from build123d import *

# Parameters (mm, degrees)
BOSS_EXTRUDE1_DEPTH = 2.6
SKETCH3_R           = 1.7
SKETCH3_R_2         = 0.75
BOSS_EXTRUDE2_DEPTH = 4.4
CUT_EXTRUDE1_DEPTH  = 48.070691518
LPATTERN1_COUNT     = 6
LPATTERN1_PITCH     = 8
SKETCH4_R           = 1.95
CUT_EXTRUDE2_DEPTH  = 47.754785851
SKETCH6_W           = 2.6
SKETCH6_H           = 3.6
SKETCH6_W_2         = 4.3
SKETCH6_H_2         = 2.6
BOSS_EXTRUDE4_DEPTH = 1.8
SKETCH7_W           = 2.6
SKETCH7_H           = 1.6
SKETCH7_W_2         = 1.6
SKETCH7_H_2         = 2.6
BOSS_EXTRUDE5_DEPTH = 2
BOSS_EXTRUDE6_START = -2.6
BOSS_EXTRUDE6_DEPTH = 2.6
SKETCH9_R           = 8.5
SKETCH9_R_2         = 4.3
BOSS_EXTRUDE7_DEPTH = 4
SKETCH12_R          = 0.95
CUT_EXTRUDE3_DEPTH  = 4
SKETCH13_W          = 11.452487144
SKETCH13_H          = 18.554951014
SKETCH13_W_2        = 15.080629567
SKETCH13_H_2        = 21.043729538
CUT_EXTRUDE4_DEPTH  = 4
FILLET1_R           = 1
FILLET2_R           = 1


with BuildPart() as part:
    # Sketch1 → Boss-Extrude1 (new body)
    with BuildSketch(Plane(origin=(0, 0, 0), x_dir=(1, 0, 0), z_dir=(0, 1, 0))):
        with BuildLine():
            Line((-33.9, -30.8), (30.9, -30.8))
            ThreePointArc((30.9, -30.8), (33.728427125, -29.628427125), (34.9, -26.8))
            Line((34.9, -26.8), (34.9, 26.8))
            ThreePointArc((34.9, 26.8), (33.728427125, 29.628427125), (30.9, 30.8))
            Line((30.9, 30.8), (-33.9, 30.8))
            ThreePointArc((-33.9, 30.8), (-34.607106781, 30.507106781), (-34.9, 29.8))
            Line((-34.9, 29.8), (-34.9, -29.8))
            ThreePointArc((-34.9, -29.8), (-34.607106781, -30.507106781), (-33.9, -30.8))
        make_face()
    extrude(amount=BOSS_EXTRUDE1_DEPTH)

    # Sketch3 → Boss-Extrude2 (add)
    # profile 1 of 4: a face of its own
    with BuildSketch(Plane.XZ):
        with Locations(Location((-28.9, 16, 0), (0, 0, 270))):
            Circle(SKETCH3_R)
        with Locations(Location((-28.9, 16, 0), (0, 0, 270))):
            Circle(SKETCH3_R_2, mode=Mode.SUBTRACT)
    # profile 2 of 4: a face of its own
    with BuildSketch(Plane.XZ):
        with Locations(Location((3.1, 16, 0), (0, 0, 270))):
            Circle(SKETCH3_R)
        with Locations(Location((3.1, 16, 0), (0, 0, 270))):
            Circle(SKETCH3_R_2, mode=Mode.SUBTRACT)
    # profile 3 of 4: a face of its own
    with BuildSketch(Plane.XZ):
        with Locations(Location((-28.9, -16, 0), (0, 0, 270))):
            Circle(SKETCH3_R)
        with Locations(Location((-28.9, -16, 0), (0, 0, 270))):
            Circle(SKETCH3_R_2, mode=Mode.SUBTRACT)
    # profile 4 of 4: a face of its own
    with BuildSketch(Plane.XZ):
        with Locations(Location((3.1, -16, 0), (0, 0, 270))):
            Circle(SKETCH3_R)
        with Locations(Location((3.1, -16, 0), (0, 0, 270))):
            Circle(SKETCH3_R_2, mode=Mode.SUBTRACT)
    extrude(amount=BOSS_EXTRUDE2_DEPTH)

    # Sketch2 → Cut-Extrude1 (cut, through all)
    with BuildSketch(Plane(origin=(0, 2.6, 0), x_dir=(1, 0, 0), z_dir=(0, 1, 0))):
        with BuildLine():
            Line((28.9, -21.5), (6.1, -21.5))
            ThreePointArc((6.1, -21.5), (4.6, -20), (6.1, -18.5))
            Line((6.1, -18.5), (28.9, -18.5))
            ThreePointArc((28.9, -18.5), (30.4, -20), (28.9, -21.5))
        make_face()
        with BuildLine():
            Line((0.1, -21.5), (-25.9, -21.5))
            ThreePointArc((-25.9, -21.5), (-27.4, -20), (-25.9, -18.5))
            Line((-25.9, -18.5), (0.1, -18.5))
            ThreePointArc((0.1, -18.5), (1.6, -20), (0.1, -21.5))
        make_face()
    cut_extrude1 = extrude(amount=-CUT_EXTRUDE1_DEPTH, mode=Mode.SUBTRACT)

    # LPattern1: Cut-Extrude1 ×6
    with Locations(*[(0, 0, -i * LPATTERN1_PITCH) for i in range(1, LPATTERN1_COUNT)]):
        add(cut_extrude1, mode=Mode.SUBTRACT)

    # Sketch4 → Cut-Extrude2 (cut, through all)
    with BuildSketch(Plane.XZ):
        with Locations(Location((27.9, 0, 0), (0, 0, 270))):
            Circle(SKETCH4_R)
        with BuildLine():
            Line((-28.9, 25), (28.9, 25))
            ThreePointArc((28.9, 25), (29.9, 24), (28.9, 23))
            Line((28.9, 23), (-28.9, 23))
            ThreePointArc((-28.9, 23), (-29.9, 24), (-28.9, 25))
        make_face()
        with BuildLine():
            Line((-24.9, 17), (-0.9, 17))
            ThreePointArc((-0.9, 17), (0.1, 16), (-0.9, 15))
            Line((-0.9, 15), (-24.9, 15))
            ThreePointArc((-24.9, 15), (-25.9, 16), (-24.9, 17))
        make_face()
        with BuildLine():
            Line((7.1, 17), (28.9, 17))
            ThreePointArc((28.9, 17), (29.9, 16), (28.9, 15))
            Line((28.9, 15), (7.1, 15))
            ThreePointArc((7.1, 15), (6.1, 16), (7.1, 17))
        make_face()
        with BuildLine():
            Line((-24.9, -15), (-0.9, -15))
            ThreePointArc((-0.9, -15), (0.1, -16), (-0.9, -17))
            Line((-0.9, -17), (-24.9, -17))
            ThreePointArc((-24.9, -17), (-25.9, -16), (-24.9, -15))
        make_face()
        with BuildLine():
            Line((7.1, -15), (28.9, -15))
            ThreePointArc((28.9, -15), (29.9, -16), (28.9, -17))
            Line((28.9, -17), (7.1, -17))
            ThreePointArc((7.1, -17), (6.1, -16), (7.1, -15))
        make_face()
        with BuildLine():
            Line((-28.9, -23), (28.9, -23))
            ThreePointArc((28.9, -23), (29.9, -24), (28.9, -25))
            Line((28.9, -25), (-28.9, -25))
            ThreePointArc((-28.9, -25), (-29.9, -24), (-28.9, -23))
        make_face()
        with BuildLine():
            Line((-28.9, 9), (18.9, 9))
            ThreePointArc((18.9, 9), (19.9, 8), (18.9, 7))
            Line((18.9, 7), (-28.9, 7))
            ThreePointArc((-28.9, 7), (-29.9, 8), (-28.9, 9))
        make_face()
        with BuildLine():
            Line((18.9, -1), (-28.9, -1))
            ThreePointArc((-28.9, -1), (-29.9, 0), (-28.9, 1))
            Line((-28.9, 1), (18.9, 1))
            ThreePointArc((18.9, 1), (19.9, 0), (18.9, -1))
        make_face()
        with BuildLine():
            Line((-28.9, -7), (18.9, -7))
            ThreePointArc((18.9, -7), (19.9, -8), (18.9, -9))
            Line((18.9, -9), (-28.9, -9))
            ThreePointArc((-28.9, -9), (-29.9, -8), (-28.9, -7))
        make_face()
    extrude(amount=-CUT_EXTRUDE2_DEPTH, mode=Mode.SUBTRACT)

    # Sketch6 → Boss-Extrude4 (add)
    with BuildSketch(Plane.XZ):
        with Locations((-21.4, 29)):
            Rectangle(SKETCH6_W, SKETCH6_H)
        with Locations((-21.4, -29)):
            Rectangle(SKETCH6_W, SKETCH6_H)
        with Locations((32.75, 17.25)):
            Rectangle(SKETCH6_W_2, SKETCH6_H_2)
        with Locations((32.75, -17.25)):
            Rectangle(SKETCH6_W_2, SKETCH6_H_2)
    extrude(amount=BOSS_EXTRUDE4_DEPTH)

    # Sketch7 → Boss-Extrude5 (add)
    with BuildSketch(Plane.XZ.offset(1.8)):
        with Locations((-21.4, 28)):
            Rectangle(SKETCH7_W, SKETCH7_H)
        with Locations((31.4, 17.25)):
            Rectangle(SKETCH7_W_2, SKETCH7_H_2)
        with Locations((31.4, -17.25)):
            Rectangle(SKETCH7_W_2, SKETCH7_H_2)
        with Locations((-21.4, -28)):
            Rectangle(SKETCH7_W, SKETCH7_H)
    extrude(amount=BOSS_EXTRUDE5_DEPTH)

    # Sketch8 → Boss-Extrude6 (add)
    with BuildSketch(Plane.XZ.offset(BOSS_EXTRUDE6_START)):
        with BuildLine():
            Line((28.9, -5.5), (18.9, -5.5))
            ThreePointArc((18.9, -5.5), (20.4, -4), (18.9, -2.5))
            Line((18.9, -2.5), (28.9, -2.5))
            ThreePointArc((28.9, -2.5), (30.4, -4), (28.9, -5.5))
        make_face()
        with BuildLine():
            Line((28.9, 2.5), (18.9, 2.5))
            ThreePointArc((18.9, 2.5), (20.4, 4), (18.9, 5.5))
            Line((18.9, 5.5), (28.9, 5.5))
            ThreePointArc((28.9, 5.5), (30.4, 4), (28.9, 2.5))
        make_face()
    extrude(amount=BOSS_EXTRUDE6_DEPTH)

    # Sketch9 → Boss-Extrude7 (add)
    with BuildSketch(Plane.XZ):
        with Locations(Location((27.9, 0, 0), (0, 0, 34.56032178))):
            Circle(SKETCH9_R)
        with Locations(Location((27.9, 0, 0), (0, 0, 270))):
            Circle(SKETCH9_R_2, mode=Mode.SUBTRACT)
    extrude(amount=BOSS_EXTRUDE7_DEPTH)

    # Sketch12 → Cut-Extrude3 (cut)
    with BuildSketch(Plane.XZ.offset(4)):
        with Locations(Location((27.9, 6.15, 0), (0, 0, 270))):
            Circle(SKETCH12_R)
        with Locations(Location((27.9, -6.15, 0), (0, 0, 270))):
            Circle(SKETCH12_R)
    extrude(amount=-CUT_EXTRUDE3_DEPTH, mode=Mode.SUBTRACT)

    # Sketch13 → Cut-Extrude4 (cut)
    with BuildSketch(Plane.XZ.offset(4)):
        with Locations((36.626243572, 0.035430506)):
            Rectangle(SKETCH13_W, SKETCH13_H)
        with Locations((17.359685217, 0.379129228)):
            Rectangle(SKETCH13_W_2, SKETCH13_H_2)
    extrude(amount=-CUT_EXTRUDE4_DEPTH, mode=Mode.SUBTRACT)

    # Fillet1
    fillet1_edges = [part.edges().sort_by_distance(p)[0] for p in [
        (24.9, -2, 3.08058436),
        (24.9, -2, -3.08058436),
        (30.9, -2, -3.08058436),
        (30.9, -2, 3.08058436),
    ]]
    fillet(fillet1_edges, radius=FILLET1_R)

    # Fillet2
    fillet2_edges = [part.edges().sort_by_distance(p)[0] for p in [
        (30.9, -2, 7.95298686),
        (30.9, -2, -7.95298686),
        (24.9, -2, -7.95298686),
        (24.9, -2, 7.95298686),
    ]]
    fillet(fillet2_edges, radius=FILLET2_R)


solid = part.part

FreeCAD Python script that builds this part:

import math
import FreeCAD as App
import Part
import Sketcher

V = App.Vector


def edges_at(feature, points):
    """Names of the edges that pass closest to the given points."""
    edges = feature.Shape.Edges
    near = lambda p: min(range(len(edges)), key=lambda i: edges[i].distToShape(Part.Vertex(*p))[0])
    return sorted({f"Edge{near(p) + 1}" for p in points})


def add_polygon(sketch, points):
    """Adds a closed chain of lines whose ends are joined by coincident constraints."""
    first, n = sketch.GeometryCount, len(points)
    for a, b in zip(points, points[1:] + points[:1]):
        sketch.addGeometry(Part.LineSegment(App.Vector(*a, 0), App.Vector(*b, 0)), False)
    for i in range(n):
        sketch.addConstraint(Sketcher.Constraint("Coincident", first + i, 2, first + (i + 1) % n, 1))

doc = App.newDocument("Part")
body = doc.addObject("PartDesign::Body", "Body")

sketch1 = body.newObject("Sketcher::SketchObject", "Sketch")
sketch1.AttachmentSupport = (doc.getObject("XZ_Plane"), [""])
sketch1.MapMode = "FlatFace"
sketch1.addGeometry(Part.LineSegment(V(-33.9, 30.8, 0), V(30.9, 30.8, 0)), False)
sketch1.addGeometry(Part.ArcOfCircle(Part.Circle(V(30.9, 26.8, 0), V(0, 0, 1), 4), math.radians(0), math.radians(90)), False)
sketch1.addGeometry(Part.LineSegment(V(34.9, 26.8, 0), V(34.9, -26.8, 0)), False)
sketch1.addGeometry(Part.ArcOfCircle(Part.Circle(V(30.9, -26.8, 0), V(0, 0, 1), 4), math.radians(-90), math.radians(0)), False)
sketch1.addGeometry(Part.LineSegment(V(30.9, -30.8, 0), V(-33.9, -30.8, 0)), False)
sketch1.addGeometry(Part.ArcOfCircle(Part.Circle(V(-33.9, -29.8, 0), V(0, 0, 1), 1), math.radians(-180), math.radians(-90)), False)
sketch1.addGeometry(Part.LineSegment(V(-34.9, -29.8, 0), V(-34.9, 29.8, 0)), False)
sketch1.addGeometry(Part.ArcOfCircle(Part.Circle(V(-33.9, 29.8, 0), V(0, 0, 1), 1), math.radians(90), math.radians(180)), False)
sketch1.addConstraint(Sketcher.Constraint("Tangent", 0, 2, 1, 2))
sketch1.addConstraint(Sketcher.Constraint("Tangent", 1, 1, 2, 1))
sketch1.addConstraint(Sketcher.Constraint("Tangent", 2, 2, 3, 2))
sketch1.addConstraint(Sketcher.Constraint("Tangent", 3, 1, 4, 1))
sketch1.addConstraint(Sketcher.Constraint("Tangent", 4, 2, 5, 2))
sketch1.addConstraint(Sketcher.Constraint("Tangent", 5, 1, 6, 1))
sketch1.addConstraint(Sketcher.Constraint("Tangent", 6, 2, 7, 2))
sketch1.addConstraint(Sketcher.Constraint("Tangent", 7, 1, 0, 1))
sketch1.addConstraint(Sketcher.Constraint("Horizontal", 0))
sketch1.addConstraint(Sketcher.Constraint("Vertical", 2))
sketch1.addConstraint(Sketcher.Constraint("Horizontal", 4))
sketch1.addConstraint(Sketcher.Constraint("Vertical", 6))
sketch1.addConstraint(Sketcher.Constraint("Equal", 1, 3))
sketch1.addConstraint(Sketcher.Constraint("Equal", 5, 7))
sketch1.addConstraint(Sketcher.Constraint("Radius", 1, 4.0))
sketch1.addConstraint(Sketcher.Constraint("Radius", 5, 1.0))
sketch1.addConstraint(Sketcher.Constraint("DistanceX", 0, 1, 0, 2, 64.8))
sketch1.addConstraint(Sketcher.Constraint("DistanceY", 2, 2, 2, 1, 53.6))
sketch1.addConstraint(Sketcher.Constraint("DistanceX", -1, 1, 1, 3, 30.9))
sketch1.addConstraint(Sketcher.Constraint("DistanceY", -1, 1, 1, 3, 26.8))
pad1 = body.newObject("PartDesign::Pad", "Pad")
pad1.Profile = sketch1
pad1.Length = 2.6
pad1.Reversed = True

sketch2 = body.newObject("Sketcher::SketchObject", "Sketch001")
sketch2.AttachmentSupport = (doc.getObject("XZ_Plane"), [""])
sketch2.MapMode = "FlatFace"
sketch2.addGeometry(Part.Circle(V(-28.9, 16, 0), V(0, 0, 1), 1.7), False)
sketch2.addGeometry(Part.Circle(V(-28.9, 16, 0), V(0, 0, 1), 0.8), False)
sketch2.addGeometry(Part.Circle(V(3.1, 16, 0), V(0, 0, 1), 1.7), False)
sketch2.addGeometry(Part.Circle(V(3.1, 16, 0), V(0, 0, 1), 0.8), False)
sketch2.addGeometry(Part.Circle(V(-28.9, -16, 0), V(0, 0, 1), 1.7), False)
sketch2.addGeometry(Part.Circle(V(-28.9, -16, 0), V(0, 0, 1), 0.8), False)
sketch2.addGeometry(Part.Circle(V(3.1, -16, 0), V(0, 0, 1), 1.7), False)
sketch2.addGeometry(Part.Circle(V(3.1, -16, 0), V(0, 0, 1), 0.8), False)
sketch2.addConstraint(Sketcher.Constraint("Coincident", 1, 3, 0, 3))
sketch2.addConstraint(Sketcher.Constraint("Coincident", 3, 3, 2, 3))
sketch2.addConstraint(Sketcher.Constraint("Coincident", 5, 3, 4, 3))
sketch2.addConstraint(Sketcher.Constraint("Coincident", 7, 3, 6, 3))
sketch2.addConstraint(Sketcher.Constraint("Equal", 0, 2))
sketch2.addConstraint(Sketcher.Constraint("Equal", 1, 3))
sketch2.addConstraint(Sketcher.Constraint("Equal", 2, 4))
sketch2.addConstraint(Sketcher.Constraint("Equal", 3, 5))
sketch2.addConstraint(Sketcher.Constraint("Equal", 4, 6))
sketch2.addConstraint(Sketcher.Constraint("Equal", 5, 7))
sketch2.addConstraint(Sketcher.Constraint("Symmetric", 0, 3, 4, 3, -1))
sketch2.addConstraint(Sketcher.Constraint("Symmetric", 2, 3, 6, 3, -1))
sketch2.addConstraint(Sketcher.Constraint("Horizontal", 1, 3, 2, 3))
sketch2.addConstraint(Sketcher.Constraint("Diameter", 0, 3.4))
sketch2.addConstraint(Sketcher.Constraint("Diameter", 1, 1.5))
sketch2.addConstraint(Sketcher.Constraint("DistanceY", -1, 1, 0, 3, 16.0))
sketch2.addConstraint(Sketcher.Constraint("DistanceX", 0, 3, 2, 3, 32.0))
sketch2.addConstraint(Sketcher.Constraint("DistanceX", 0, 3, -1, 1, 28.9))
pad2 = body.newObject("PartDesign::Pad", "Pad001")
pad2.Profile = sketch2
pad2.Length = 4.4

sketch3 = body.newObject("Sketcher::SketchObject", "Sketch002")
sketch3.AttachmentSupport = (doc.getObject("XZ_Plane"), [""])
sketch3.MapMode = "FlatFace"
sketch3.AttachmentOffset = App.Placement(V(0, 0, -2.6), App.Rotation())
sketch3.addGeometry(Part.LineSegment(V(6.1, 21.5, 0), V(28.9, 21.5, 0)), False)
sketch3.addGeometry(Part.ArcOfCircle(Part.Circle(V(28.9, 20, 0), V(0, 0, 1), 1.5), math.radians(-90), math.radians(90)), False)
sketch3.addGeometry(Part.LineSegment(V(28.9, 18.5, 0), V(6.1, 18.5, 0)), False)
sketch3.addGeometry(Part.ArcOfCircle(Part.Circle(V(6.1, 20, 0), V(0, 0, 1), 1.5), math.radians(90), math.radians(270)), False)
sketch3.addGeometry(Part.LineSegment(V(-25.9, 21.5, 0), V(0.1, 21.5, 0)), False)
sketch3.addGeometry(Part.ArcOfCircle(Part.Circle(V(0.1, 20, 0), V(0, 0, 1), 1.5), math.radians(-90), math.radians(90)), False)
sketch3.addGeometry(Part.LineSegment(V(0.1, 18.5, 0), V(-25.9, 18.5, 0)), False)
sketch3.addGeometry(Part.ArcOfCircle(Part.Circle(V(-25.9, 20, 0), V(0, 0, 1), 1.5), math.radians(90), math.radians(270)), False)
sketch3.addConstraint(Sketcher.Constraint("Tangent", 0, 2, 1, 2))
sketch3.addConstraint(Sketcher.Constraint("Tangent", 1, 1, 2, 1))
sketch3.addConstraint(Sketcher.Constraint("Tangent", 2, 2, 3, 2))
sketch3.addConstraint(Sketcher.Constraint("Tangent", 3, 1, 0, 1))
sketch3.addConstraint(Sketcher.Constraint("Tangent", 4, 2, 5, 2))
sketch3.addConstraint(Sketcher.Constraint("Tangent", 5, 1, 6, 1))
sketch3.addConstraint(Sketcher.Constraint("Tangent", 6, 2, 7, 2))
sketch3.addConstraint(Sketcher.Constraint("Tangent", 7, 1, 4, 1))
sketch3.addConstraint(Sketcher.Constraint("Horizontal", 0))
sketch3.addConstraint(Sketcher.Constraint("Horizontal", 2))
sketch3.addConstraint(Sketcher.Constraint("Horizontal", 4))
sketch3.addConstraint(Sketcher.Constraint("Horizontal", 6))
sketch3.addConstraint(Sketcher.Constraint("Equal", 3, 5))
sketch3.addConstraint(Sketcher.Constraint("Horizontal", 3, 3, 5, 3))
sketch3.addConstraint(Sketcher.Constraint("Radius", 1, 1.5))
sketch3.addConstraint(Sketcher.Constraint("DistanceX", 4, 1, 4, 2, 26.0))
sketch3.addConstraint(Sketcher.Constraint("DistanceX", 0, 1, 0, 2, 22.8))
sketch3.addConstraint(Sketcher.Constraint("DistanceY", -1, 1, 1, 3, 20.0))
sketch3.addConstraint(Sketcher.Constraint("DistanceX", 5, 3, 3, 3, 6.0))
sketch3.addConstraint(Sketcher.Constraint("DistanceX", -1, 1, 1, 3, 28.9))
pocket1 = body.newObject("PartDesign::Pocket", "Pocket")
pocket1.Profile = sketch3
pocket1.Type = "ThroughAll"
pocket1.Reversed = True
doc.recompute()

linearpattern = body.newObject("PartDesign::LinearPattern", "LinearPattern")
linearpattern.Originals = [pocket1]
linearpattern.Direction = (doc.getObject("Z_Axis"), [""])
linearpattern.Mode = "offset"
linearpattern.Offset = 8
linearpattern.Occurrences = 6
linearpattern.Reversed = True
body.Tip = linearpattern

sketch4 = body.newObject("Sketcher::SketchObject", "Sketch003")
sketch4.AttachmentSupport = (doc.getObject("XZ_Plane"), [""])
sketch4.MapMode = "FlatFace"
sketch4.addGeometry(Part.Circle(V(27.9, 0, 0), V(0, 0, 1), 1.9), False)
sketch4.addGeometry(Part.LineSegment(V(28.9, 25, 0), V(-28.9, 25, 0)), False)
sketch4.addGeometry(Part.ArcOfCircle(Part.Circle(V(-28.9, 24, 0), V(0, 0, 1), 1), math.radians(90), math.radians(270)), False)
sketch4.addGeometry(Part.LineSegment(V(-28.9, 23, 0), V(28.9, 23, 0)), False)
sketch4.addGeometry(Part.ArcOfCircle(Part.Circle(V(28.9, 24, 0), V(0, 0, 1), 1), math.radians(-90), math.radians(90)), False)
sketch4.addGeometry(Part.LineSegment(V(-0.9, 17, 0), V(-24.9, 17, 0)), False)
sketch4.addGeometry(Part.ArcOfCircle(Part.Circle(V(-24.9, 16, 0), V(0, 0, 1), 1), math.radians(90), math.radians(270)), False)
sketch4.addGeometry(Part.LineSegment(V(-24.9, 15, 0), V(-0.9, 15, 0)), False)
sketch4.addGeometry(Part.ArcOfCircle(Part.Circle(V(-0.9, 16, 0), V(0, 0, 1), 1), math.radians(-90), math.radians(90)), False)
sketch4.addGeometry(Part.LineSegment(V(28.9, 17, 0), V(7.1, 17, 0)), False)
sketch4.addGeometry(Part.ArcOfCircle(Part.Circle(V(7.1, 16, 0), V(0, 0, 1), 1), math.radians(90), math.radians(270)), False)
sketch4.addGeometry(Part.LineSegment(V(7.1, 15, 0), V(28.9, 15, 0)), False)
sketch4.addGeometry(Part.ArcOfCircle(Part.Circle(V(28.9, 16, 0), V(0, 0, 1), 1), math.radians(-90), math.radians(90)), False)
sketch4.addGeometry(Part.LineSegment(V(-0.9, -15, 0), V(-24.9, -15, 0)), False)
sketch4.addGeometry(Part.ArcOfCircle(Part.Circle(V(-24.9, -16, 0), V(0, 0, 1), 1), math.radians(90), math.radians(270)), False)
sketch4.addGeometry(Part.LineSegment(V(-24.9, -17, 0), V(-0.9, -17, 0)), False)
sketch4.addGeometry(Part.ArcOfCircle(Part.Circle(V(-0.9, -16, 0), V(0, 0, 1), 1), math.radians(-90), math.radians(90)), False)
sketch4.addGeometry(Part.LineSegment(V(28.9, -15, 0), V(7.1, -15, 0)), False)
sketch4.addGeometry(Part.ArcOfCircle(Part.Circle(V(7.1, -16, 0), V(0, 0, 1), 1), math.radians(90), math.radians(270)), False)
sketch4.addGeometry(Part.LineSegment(V(7.1, -17, 0), V(28.9, -17, 0)), False)
sketch4.addGeometry(Part.ArcOfCircle(Part.Circle(V(28.9, -16, 0), V(0, 0, 1), 1), math.radians(-90), math.radians(90)), False)
sketch4.addGeometry(Part.LineSegment(V(28.9, -23, 0), V(-28.9, -23, 0)), False)
sketch4.addGeometry(Part.ArcOfCircle(Part.Circle(V(-28.9, -24, 0), V(0, 0, 1), 1), math.radians(90), math.radians(270)), False)
sketch4.addGeometry(Part.LineSegment(V(-28.9, -25, 0), V(28.9, -25, 0)), False)
sketch4.addGeometry(Part.ArcOfCircle(Part.Circle(V(28.9, -24, 0), V(0, 0, 1), 1), math.radians(-90), math.radians(90)), False)
sketch4.addGeometry(Part.LineSegment(V(18.9, 9, 0), V(-28.9, 9, 0)), False)
sketch4.addGeometry(Part.ArcOfCircle(Part.Circle(V(-28.9, 8, 0), V(0, 0, 1), 1), math.radians(90), math.radians(270)), False)
sketch4.addGeometry(Part.LineSegment(V(-28.9, 7, 0), V(18.9, 7, 0)), False)
sketch4.addGeometry(Part.ArcOfCircle(Part.Circle(V(18.9, 8, 0), V(0, 0, 1), 1), math.radians(-90), math.radians(90)), False)
sketch4.addGeometry(Part.LineSegment(V(-28.9, -1, 0), V(18.9, -1, 0)), False)
sketch4.addGeometry(Part.ArcOfCircle(Part.Circle(V(18.9, 0, 0), V(0, 0, 1), 1), math.radians(-90), math.radians(90)), False)
sketch4.addGeometry(Part.LineSegment(V(18.9, 1, 0), V(-28.9, 1, 0)), False)
sketch4.addGeometry(Part.ArcOfCircle(Part.Circle(V(-28.9, 0, 0), V(0, 0, 1), 1), math.radians(90), math.radians(270)), False)
sketch4.addGeometry(Part.LineSegment(V(18.9, -7, 0), V(-28.9, -7, 0)), False)
sketch4.addGeometry(Part.ArcOfCircle(Part.Circle(V(-28.9, -8, 0), V(0, 0, 1), 1), math.radians(90), math.radians(270)), False)
sketch4.addGeometry(Part.LineSegment(V(-28.9, -9, 0), V(18.9, -9, 0)), False)
sketch4.addGeometry(Part.ArcOfCircle(Part.Circle(V(18.9, -8, 0), V(0, 0, 1), 1), math.radians(-90), math.radians(90)), False)
sketch4.addConstraint(Sketcher.Constraint("Tangent", 1, 2, 2, 1))
sketch4.addConstraint(Sketcher.Constraint("Tangent", 2, 2, 3, 1))
sketch4.addConstraint(Sketcher.Constraint("Tangent", 3, 2, 4, 1))
sketch4.addConstraint(Sketcher.Constraint("Tangent", 4, 2, 1, 1))
sketch4.addConstraint(Sketcher.Constraint("Tangent", 5, 2, 6, 1))
sketch4.addConstraint(Sketcher.Constraint("Tangent", 6, 2, 7, 1))
sketch4.addConstraint(Sketcher.Constraint("Tangent", 7, 2, 8, 1))
sketch4.addConstraint(Sketcher.Constraint("Tangent", 8, 2, 5, 1))
sketch4.addConstraint(Sketcher.Constraint("Tangent", 9, 2, 10, 1))
sketch4.addConstraint(Sketcher.Constraint("Tangent", 10, 2, 11, 1))
sketch4.addConstraint(Sketcher.Constraint("Tangent", 11, 2, 12, 1))
sketch4.addConstraint(Sketcher.Constraint("Tangent", 12, 2, 9, 1))
sketch4.addConstraint(Sketcher.Constraint("Tangent", 13, 2, 14, 1))
sketch4.addConstraint(Sketcher.Constraint("Tangent", 14, 2, 15, 1))
sketch4.addConstraint(Sketcher.Constraint("Tangent", 15, 2, 16, 1))
sketch4.addConstraint(Sketcher.Constraint("Tangent", 16, 2, 13, 1))
sketch4.addConstraint(Sketcher.Constraint("Tangent", 17, 2, 18, 1))
sketch4.addConstraint(Sketcher.Constraint("Tangent", 18, 2, 19, 1))
sketch4.addConstraint(Sketcher.Constraint("Tangent", 19, 2, 20, 1))
sketch4.addConstraint(Sketcher.Constraint("Tangent", 20, 2, 17, 1))
sketch4.addConstraint(Sketcher.Constraint("Tangent", 21, 2, 22, 1))
sketch4.addConstraint(Sketcher.Constraint("Tangent", 22, 2, 23, 1))
sketch4.addConstraint(Sketcher.Constraint("Tangent", 23, 2, 24, 1))
sketch4.addConstraint(Sketcher.Constraint("Tangent", 24, 2, 21, 1))
sketch4.addConstraint(Sketcher.Constraint("Tangent", 25, 2, 26, 1))
sketch4.addConstraint(Sketcher.Constraint("Tangent", 26, 2, 27, 1))
sketch4.addConstraint(Sketcher.Constraint("Tangent", 27, 2, 28, 1))
sketch4.addConstraint(Sketcher.Constraint("Tangent", 28, 2, 25, 1))
sketch4.addConstraint(Sketcher.Constraint("Tangent", 29, 2, 30, 1))
sketch4.addConstraint(Sketcher.Constraint("Tangent", 30, 2, 31, 1))
sketch4.addConstraint(Sketcher.Constraint("Tangent", 31, 2, 32, 1))
sketch4.addConstraint(Sketcher.Constraint("Tangent", 32, 2, 29, 1))
sketch4.addConstraint(Sketcher.Constraint("Tangent", 33, 2, 34, 1))
sketch4.addConstraint(Sketcher.Constraint("Tangent", 34, 2, 35, 1))
sketch4.addConstraint(Sketcher.Constraint("Tangent", 35, 2, 36, 1))
sketch4.addConstraint(Sketcher.Constraint("Tangent", 36, 2, 33, 1))
sketch4.addConstraint(Sketcher.Constraint("Horizontal", 1))
sketch4.addConstraint(Sketcher.Constraint("Horizontal", 3))
sketch4.addConstraint(Sketcher.Constraint("Horizontal", 5))
sketch4.addConstraint(Sketcher.Constraint("Horizontal", 7))
sketch4.addConstraint(Sketcher.Constraint("Horizontal", 9))
sketch4.addConstraint(Sketcher.Constraint("Horizontal", 11))
sketch4.addConstraint(Sketcher.Constraint("Horizontal", 13))
sketch4.addConstraint(Sketcher.Constraint("Horizontal", 15))
sketch4.addConstraint(Sketcher.Constraint("Horizontal", 17))
sketch4.addConstraint(Sketcher.Constraint("Horizontal", 19))
sketch4.addConstraint(Sketcher.Constraint("Horizontal", 21))
sketch4.addConstraint(Sketcher.Constraint("Horizontal", 23))
sketch4.addConstraint(Sketcher.Constraint("Horizontal", 25))
sketch4.addConstraint(Sketcher.Constraint("Horizontal", 27))
sketch4.addConstraint(Sketcher.Constraint("Horizontal", 29))
sketch4.addConstraint(Sketcher.Constraint("Horizontal", 31))
sketch4.addConstraint(Sketcher.Constraint("Horizontal", 33))
sketch4.addConstraint(Sketcher.Constraint("Horizontal", 35))
sketch4.addConstraint(Sketcher.Constraint("Equal", 4, 6))
sketch4.addConstraint(Sketcher.Constraint("Equal", 8, 10))
sketch4.addConstraint(Sketcher.Constraint("Equal", 12, 14))
sketch4.addConstraint(Sketcher.Constraint("Equal", 16, 18))
sketch4.addConstraint(Sketcher.Constraint("Equal", 20, 22))
sketch4.addConstraint(Sketcher.Constraint("Equal", 24, 26))
sketch4.addConstraint(Sketcher.Constraint("Equal", 28, 30))
sketch4.addConstraint(Sketcher.Constraint("Equal", 32, 34))
sketch4.addConstraint(Sketcher.Constraint("Symmetric", 4, 3, 22, 3, -1, 1))
sketch4.addConstraint(Sketcher.Constraint("Symmetric", 6, 3, 14, 3, -1))
sketch4.addConstraint(Sketcher.Constraint("Symmetric", 10, 3, 18, 3, -1))
sketch4.addConstraint(Sketcher.Constraint("Symmetric", 26, 3, 34, 3, -1))
sketch4.addConstraint(Sketcher.Constraint("PointOnObject", 0, 3, -1))
sketch4.addConstraint(Sketcher.Constraint("PointOnObject", 30, 3, -1))
sketch4.addConstraint(Sketcher.Constraint("Horizontal", 8, 3, 10, 3))
sketch4.addConstraint(Sketcher.Constraint("Vertical", 4, 3, 12, 3))
sketch4.addConstraint(Sketcher.Constraint("Vertical", 8, 3, 16, 3))
sketch4.addConstraint(Sketcher.Constraint("Vertical", 12, 3, 20, 3))
sketch4.addConstraint(Sketcher.Constraint("Vertical", 2, 3, 22, 3))
sketch4.addConstraint(Sketcher.Constraint("Vertical", 20, 3, 24, 3))
sketch4.addConstraint(Sketcher.Constraint("Vertical", 22, 3, 26, 3))
sketch4.addConstraint(Sketcher.Constraint("Vertical", 28, 3, 30, 3))
sketch4.addConstraint(Sketcher.Constraint("Vertical", 26, 3, 32, 3))
sketch4.addConstraint(Sketcher.Constraint("Vertical", 30, 3, 36, 3))
sketch4.addConstraint(Sketcher.Constraint("Radius", 2, 1.0))
sketch4.addConstraint(Sketcher.Constraint("Diameter", 0, 3.9))
sketch4.addConstraint(Sketcher.Constraint("DistanceX", 5, 2, 5, 1, 24.0))
sketch4.addConstraint(Sketcher.Constraint("DistanceX", 1, 2, 1, 1, 57.8))
sketch4.addConstraint(Sketcher.Constraint("DistanceX", 9, 2, 9, 1, 21.8))
sketch4.addConstraint(Sketcher.Constraint("DistanceX", 25, 2, 25, 1, 47.8))
sketch4.addConstraint(Sketcher.Constraint("DistanceY", -1, 1, 2, 3, 24.0))
sketch4.addConstraint(Sketcher.Constraint("DistanceY", -1, 1, 6, 3, 16.0))
sketch4.addConstraint(Sketcher.Constraint("DistanceY", -1, 1, 26, 3, 8.0))
sketch4.addConstraint(Sketcher.Constraint("DistanceX", 0, 3, 4, 3, 1.0))
sketch4.addConstraint(Sketcher.Constraint("DistanceX", 2, 3, 6, 3, 4.0))
pocket2 = body.newObject("PartDesign::Pocket", "Pocket001")
pocket2.Profile = sketch4
pocket2.Type = "ThroughAll"

sketch5 = body.newObject("Sketcher::SketchObject", "Sketch004")
sketch5.AttachmentSupport = (doc.getObject("XZ_Plane"), [""])
sketch5.MapMode = "FlatFace"
add_polygon(sketch5, [(-22.7, 30.8), (-22.7, 27.2), (-20.1, 27.2), (-20.1, 30.8)])
add_polygon(sketch5, [(-22.7, -27.2), (-22.7, -30.8), (-20.1, -30.8), (-20.1, -27.2)])
add_polygon(sketch5, [(30.6, 18.6), (30.6, 15.9), (34.9, 15.9), (34.9, 18.6)])
add_polygon(sketch5, [(30.6, -15.9), (30.6, -18.6), (34.9, -18.6), (34.9, -15.9)])
sketch5.addConstraint(Sketcher.Constraint("Vertical", 0))
sketch5.addConstraint(Sketcher.Constraint("Horizontal", 1))
sketch5.addConstraint(Sketcher.Constraint("Vertical", 2))
sketch5.addConstraint(Sketcher.Constraint("Horizontal", 3))
sketch5.addConstraint(Sketcher.Constraint("Vertical", 4))
sketch5.addConstraint(Sketcher.Constraint("Horizontal", 5))
sketch5.addConstraint(Sketcher.Constraint("Vertical", 6))
sketch5.addConstraint(Sketcher.Constraint("Horizontal", 7))
sketch5.addConstraint(Sketcher.Constraint("Vertical", 8))
sketch5.addConstraint(Sketcher.Constraint("Horizontal", 9))
sketch5.addConstraint(Sketcher.Constraint("Vertical", 10))
sketch5.addConstraint(Sketcher.Constraint("Horizontal", 11))
sketch5.addConstraint(Sketcher.Constraint("Vertical", 12))
sketch5.addConstraint(Sketcher.Constraint("Horizontal", 13))
sketch5.addConstraint(Sketcher.Constraint("Vertical", 14))
sketch5.addConstraint(Sketcher.Constraint("Horizontal", 15))
sketch5.addConstraint(Sketcher.Constraint("Symmetric", 3, 2, 4, 2, -1))
sketch5.addConstraint(Sketcher.Constraint("Symmetric", 1, 2, 6, 2, -1))
sketch5.addConstraint(Sketcher.Constraint("Symmetric", 11, 2, 12, 2, -1))
sketch5.addConstraint(Sketcher.Constraint("Symmetric", 9, 2, 14, 2, -1))
sketch5.addConstraint(Sketcher.Constraint("Equal", 7, 8))
sketch5.addConstraint(Sketcher.Constraint("DistanceX", 1, 1, 1, 2, 2.6))
sketch5.addConstraint(Sketcher.Constraint("DistanceX", 9, 1, 9, 2, 4.3))
sketch5.addConstraint(Sketcher.Constraint("DistanceY", 0, 2, 0, 1, 3.6))
sketch5.addConstraint(Sketcher.Constraint("DistanceY", 4, 2, 0, 2, 58.0))
sketch5.addConstraint(Sketcher.Constraint("DistanceX", 1, 2, 9, 2, 55.0))
sketch5.addConstraint(Sketcher.Constraint("DistanceX", 0, 2, -1, 1, 22.7))
sketch5.addConstraint(Sketcher.Constraint("DistanceY", 12, 2, 8, 2, 34.5))
pad3 = body.newObject("PartDesign::Pad", "Pad002")
pad3.Profile = sketch5
pad3.Length = 1.8

sketch6 = body.newObject("Sketcher::SketchObject", "Sketch005")
sketch6.AttachmentSupport = (doc.getObject("XZ_Plane"), [""])
sketch6.MapMode = "FlatFace"
sketch6.AttachmentOffset = App.Placement(V(0, 0, 1.8), App.Rotation())
add_polygon(sketch6, [(-22.7, 28.8), (-22.7, 27.2), (-20.1, 27.2), (-20.1, 28.8)])
add_polygon(sketch6, [(30.6, 18.6), (30.6, 15.9), (32.2, 15.9), (32.2, 18.6)])
add_polygon(sketch6, [(30.6, -15.9), (30.6, -18.6), (32.2, -18.6), (32.2, -15.9)])
add_polygon(sketch6, [(-22.7, -27.2), (-22.7, -28.8), (-20.1, -28.8), (-20.1, -27.2)])
sketch6.addConstraint(Sketcher.Constraint("Vertical", 0))
sketch6.addConstraint(Sketcher.Constraint("Horizontal", 1))
sketch6.addConstraint(Sketcher.Constraint("Vertical", 2))
sketch6.addConstraint(Sketcher.Constraint("Horizontal", 3))
sketch6.addConstraint(Sketcher.Constraint("Vertical", 4))
sketch6.addConstraint(Sketcher.Constraint("Horizontal", 5))
sketch6.addConstraint(Sketcher.Constraint("Vertical", 6))
sketch6.addConstraint(Sketcher.Constraint("Horizontal", 7))
sketch6.addConstraint(Sketcher.Constraint("Vertical", 8))
sketch6.addConstraint(Sketcher.Constraint("Horizontal", 9))
sketch6.addConstraint(Sketcher.Constraint("Vertical", 10))
sketch6.addConstraint(Sketcher.Constraint("Horizontal", 11))
sketch6.addConstraint(Sketcher.Constraint("Vertical", 12))
sketch6.addConstraint(Sketcher.Constraint("Horizontal", 13))
sketch6.addConstraint(Sketcher.Constraint("Vertical", 14))
sketch6.addConstraint(Sketcher.Constraint("Horizontal", 15))
sketch6.addConstraint(Sketcher.Constraint("Symmetric", 7, 2, 8, 2, -1))
sketch6.addConstraint(Sketcher.Constraint("Symmetric", 5, 2, 10, 2, -1))
sketch6.addConstraint(Sketcher.Constraint("Symmetric", 3, 2, 12, 2, -1))
sketch6.addConstraint(Sketcher.Constraint("Symmetric", 1, 2, 14, 2, -1))
sketch6.addConstraint(Sketcher.Constraint("Equal", 11, 0))
sketch6.addConstraint(Sketcher.Constraint("Equal", 15, 4))
sketch6.addConstraint(Sketcher.Constraint("DistanceX", 1, 1, 1, 2, 2.6))
sketch6.addConstraint(Sketcher.Constraint("DistanceX", 5, 1, 5, 2, 1.6))
sketch6.addConstraint(Sketcher.Constraint("DistanceY", 12, 2, 0, 2, 56.0))
sketch6.addConstraint(Sketcher.Constraint("DistanceX", 0, 2, -1, 1, 22.7))
sketch6.addConstraint(Sketcher.Constraint("DistanceX", -1, 1, 4, 2, 30.6))
sketch6.addConstraint(Sketcher.Constraint("DistanceY", 8, 2, 4, 2, 34.5))
pad4 = body.newObject("PartDesign::Pad", "Pad003")
pad4.Profile = sketch6
pad4.Length = 2

sketch7 = body.newObject("Sketcher::SketchObject", "Sketch006")
sketch7.AttachmentSupport = (doc.getObject("XZ_Plane"), [""])
sketch7.MapMode = "FlatFace"
sketch7.AttachmentOffset = App.Placement(V(0, 0, -2.6), App.Rotation())
sketch7.addGeometry(Part.LineSegment(V(18.9, -5.5, 0), V(28.9, -5.5, 0)), False)
sketch7.addGeometry(Part.ArcOfCircle(Part.Circle(V(28.9, -4, 0), V(0, 0, 1), 1.5), math.radians(-90), math.radians(90)), False)
sketch7.addGeometry(Part.LineSegment(V(28.9, -2.5, 0), V(18.9, -2.5, 0)), False)
sketch7.addGeometry(Part.ArcOfCircle(Part.Circle(V(18.9, -4, 0), V(0, 0, 1), 1.5), math.radians(-90), math.radians(90)), False)
sketch7.addGeometry(Part.LineSegment(V(18.9, 2.5, 0), V(28.9, 2.5, 0)), False)
sketch7.addGeometry(Part.ArcOfCircle(Part.Circle(V(28.9, 4, 0), V(0, 0, 1), 1.5), math.radians(-90), math.radians(90)), False)
sketch7.addGeometry(Part.LineSegment(V(28.9, 5.5, 0), V(18.9, 5.5, 0)), False)
sketch7.addGeometry(Part.ArcOfCircle(Part.Circle(V(18.9, 4, 0), V(0, 0, 1), 1.5), math.radians(-90), math.radians(90)), False)
sketch7.addConstraint(Sketcher.Constraint("Tangent", 0, 2, 1, 1))
sketch7.addConstraint(Sketcher.Constraint("Tangent", 1, 2, 2, 1))
sketch7.addConstraint(Sketcher.Constraint("Tangent", 2, 2, 3, 2))
sketch7.addConstraint(Sketcher.Constraint("Tangent", 3, 1, 0, 1))
sketch7.addConstraint(Sketcher.Constraint("Tangent", 4, 2, 5, 1))
sketch7.addConstraint(Sketcher.Constraint("Tangent", 5, 2, 6, 1))
sketch7.addConstraint(Sketcher.Constraint("Tangent", 6, 2, 7, 2))
sketch7.addConstraint(Sketcher.Constraint("Tangent", 7, 1, 4, 1))
sketch7.addConstraint(Sketcher.Constraint("Horizontal", 0))
sketch7.addConstraint(Sketcher.Constraint("Horizontal", 2))
sketch7.addConstraint(Sketcher.Constraint("Horizontal", 4))
sketch7.addConstraint(Sketcher.Constraint("Horizontal", 6))
sketch7.addConstraint(Sketcher.Constraint("Equal", 3, 5))
sketch7.addConstraint(Sketcher.Constraint("Symmetric", 1, 3, 5, 3, -1))
sketch7.addConstraint(Sketcher.Constraint("Vertical", 3, 3, 7, 3))
sketch7.addConstraint(Sketcher.Constraint("Radius", 1, 1.5))
sketch7.addConstraint(Sketcher.Constraint("DistanceX", 0, 1, 0, 2, 10.0))
sketch7.addConstraint(Sketcher.Constraint("DistanceY", 1, 3, -1, 1, 4.0))
sketch7.addConstraint(Sketcher.Constraint("DistanceX", -1, 1, 1, 3, 28.9))
pad5 = body.newObject("PartDesign::Pad", "Pad004")
pad5.Profile = sketch7
pad5.Length = 2.6

sketch8 = body.newObject("Sketcher::SketchObject", "Sketch007")
sketch8.AttachmentSupport = (doc.getObject("XZ_Plane"), [""])
sketch8.MapMode = "FlatFace"
sketch8.addGeometry(Part.Circle(V(27.9, 0, 0), V(0, 0, 1), 8.5), False)
sketch8.addGeometry(Part.Circle(V(27.9, 0, 0), V(0, 0, 1), 4.3), False)
sketch8.addConstraint(Sketcher.Constraint("Coincident", 1, 3, 0, 3))
sketch8.addConstraint(Sketcher.Constraint("PointOnObject", 0, 3, -1))
sketch8.addConstraint(Sketcher.Constraint("Diameter", 0, 17.0))
sketch8.addConstraint(Sketcher.Constraint("Diameter", 1, 8.6))
sketch8.addConstraint(Sketcher.Constraint("DistanceX", -1, 1, 0, 3, 27.9))
pad6 = body.newObject("PartDesign::Pad", "Pad005")
pad6.Profile = sketch8
pad6.Length = 4

sketch9 = body.newObject("Sketcher::SketchObject", "Sketch008")
sketch9.AttachmentSupport = (doc.getObject("XZ_Plane"), [""])
sketch9.MapMode = "FlatFace"
sketch9.AttachmentOffset = App.Placement(V(0, 0, 4), App.Rotation())
sketch9.addGeometry(Part.Circle(V(27.9, 6.2, 0), V(0, 0, 1), 0.9), False)
sketch9.addGeometry(Part.Circle(V(27.9, -6.2, 0), V(0, 0, 1), 0.9), False)
sketch9.addConstraint(Sketcher.Constraint("Equal", 0, 1))
sketch9.addConstraint(Sketcher.Constraint("Symmetric", 0, 3, 1, 3, -1))
sketch9.addConstraint(Sketcher.Constraint("Diameter", 0, 1.9))
sketch9.addConstraint(Sketcher.Constraint("DistanceX", -1, 1, 0, 3, 27.9))
sketch9.addConstraint(Sketcher.Constraint("DistanceY", 1, 3, 0, 3, 12.3))
pocket3 = body.newObject("PartDesign::Pocket", "Pocket002")
pocket3.Profile = sketch9
pocket3.Length = 4

sketch10 = body.newObject("Sketcher::SketchObject", "Sketch009")
sketch10.AttachmentSupport = (doc.getObject("XZ_Plane"), [""])
sketch10.MapMode = "FlatFace"
sketch10.AttachmentOffset = App.Placement(V(0, 0, 4), App.Rotation())
add_polygon(sketch10, [(31, 9), (31, -9), (42, -9), (42, 9)])
add_polygon(sketch10, [(10, 11), (10, -10), (25, -10), (25, 11)])
sketch10.addConstraint(Sketcher.Constraint("Vertical", 0))
sketch10.addConstraint(Sketcher.Constraint("Horizontal", 1))
sketch10.addConstraint(Sketcher.Constraint("Vertical", 2))
sketch10.addConstraint(Sketcher.Constraint("Horizontal", 3))
sketch10.addConstraint(Sketcher.Constraint("Vertical", 4))
sketch10.addConstraint(Sketcher.Constraint("Horizontal", 5))
sketch10.addConstraint(Sketcher.Constraint("Vertical", 6))
sketch10.addConstraint(Sketcher.Constraint("Horizontal", 7))
sketch10.addConstraint(Sketcher.Constraint("DistanceX", 5, 2, 0, 2, 6.0))
sketch10.addConstraint(Sketcher.Constraint("DistanceX", -1, 1, 0, 2, 30.9))
sketch10.addConstraint(Sketcher.Constraint("DistanceX", 5, 1, 5, 2, 15.08063))
sketch10.addConstraint(Sketcher.Constraint("DistanceY", 0, 2, 0, 1, 18.554951))
sketch10.addConstraint(Sketcher.Constraint("DistanceY", 4, 2, 4, 1, 21.04373))
sketch10.addConstraint(Sketcher.Constraint("DistanceX", 1, 1, 1, 2, 11.452487))
sketch10.addConstraint(Sketcher.Constraint("DistanceY", 4, 2, 0, 2, 0.900691))
sketch10.addConstraint(Sketcher.Constraint("DistanceY", 0, 2, -1, 1, 9.242045))
pocket4 = body.newObject("PartDesign::Pocket", "Pocket003")
pocket4.Profile = sketch10
pocket4.Length = 4
doc.recompute()

fillet = body.newObject("PartDesign::Fillet", "Fillet")
fillet.Base = (pocket4, edges_at(pocket4, [
    (24.9, -2, 3.081),
    (24.9, -2, -3.081),
    (30.9, -2, -3.081),
    (30.9, -2, 3.081),
]))
fillet.Radius = 1
doc.recompute()

fillet2 = body.newObject("PartDesign::Fillet", "Fillet001")
fillet2.Base = (fillet, edges_at(fillet, [
    (30.9, -2, 7.953),
    (30.9, -2, -7.953),
    (24.9, -2, -7.953),
    (24.9, -2, 7.953),
]))
fillet2.Radius = 1

doc.recompute()
